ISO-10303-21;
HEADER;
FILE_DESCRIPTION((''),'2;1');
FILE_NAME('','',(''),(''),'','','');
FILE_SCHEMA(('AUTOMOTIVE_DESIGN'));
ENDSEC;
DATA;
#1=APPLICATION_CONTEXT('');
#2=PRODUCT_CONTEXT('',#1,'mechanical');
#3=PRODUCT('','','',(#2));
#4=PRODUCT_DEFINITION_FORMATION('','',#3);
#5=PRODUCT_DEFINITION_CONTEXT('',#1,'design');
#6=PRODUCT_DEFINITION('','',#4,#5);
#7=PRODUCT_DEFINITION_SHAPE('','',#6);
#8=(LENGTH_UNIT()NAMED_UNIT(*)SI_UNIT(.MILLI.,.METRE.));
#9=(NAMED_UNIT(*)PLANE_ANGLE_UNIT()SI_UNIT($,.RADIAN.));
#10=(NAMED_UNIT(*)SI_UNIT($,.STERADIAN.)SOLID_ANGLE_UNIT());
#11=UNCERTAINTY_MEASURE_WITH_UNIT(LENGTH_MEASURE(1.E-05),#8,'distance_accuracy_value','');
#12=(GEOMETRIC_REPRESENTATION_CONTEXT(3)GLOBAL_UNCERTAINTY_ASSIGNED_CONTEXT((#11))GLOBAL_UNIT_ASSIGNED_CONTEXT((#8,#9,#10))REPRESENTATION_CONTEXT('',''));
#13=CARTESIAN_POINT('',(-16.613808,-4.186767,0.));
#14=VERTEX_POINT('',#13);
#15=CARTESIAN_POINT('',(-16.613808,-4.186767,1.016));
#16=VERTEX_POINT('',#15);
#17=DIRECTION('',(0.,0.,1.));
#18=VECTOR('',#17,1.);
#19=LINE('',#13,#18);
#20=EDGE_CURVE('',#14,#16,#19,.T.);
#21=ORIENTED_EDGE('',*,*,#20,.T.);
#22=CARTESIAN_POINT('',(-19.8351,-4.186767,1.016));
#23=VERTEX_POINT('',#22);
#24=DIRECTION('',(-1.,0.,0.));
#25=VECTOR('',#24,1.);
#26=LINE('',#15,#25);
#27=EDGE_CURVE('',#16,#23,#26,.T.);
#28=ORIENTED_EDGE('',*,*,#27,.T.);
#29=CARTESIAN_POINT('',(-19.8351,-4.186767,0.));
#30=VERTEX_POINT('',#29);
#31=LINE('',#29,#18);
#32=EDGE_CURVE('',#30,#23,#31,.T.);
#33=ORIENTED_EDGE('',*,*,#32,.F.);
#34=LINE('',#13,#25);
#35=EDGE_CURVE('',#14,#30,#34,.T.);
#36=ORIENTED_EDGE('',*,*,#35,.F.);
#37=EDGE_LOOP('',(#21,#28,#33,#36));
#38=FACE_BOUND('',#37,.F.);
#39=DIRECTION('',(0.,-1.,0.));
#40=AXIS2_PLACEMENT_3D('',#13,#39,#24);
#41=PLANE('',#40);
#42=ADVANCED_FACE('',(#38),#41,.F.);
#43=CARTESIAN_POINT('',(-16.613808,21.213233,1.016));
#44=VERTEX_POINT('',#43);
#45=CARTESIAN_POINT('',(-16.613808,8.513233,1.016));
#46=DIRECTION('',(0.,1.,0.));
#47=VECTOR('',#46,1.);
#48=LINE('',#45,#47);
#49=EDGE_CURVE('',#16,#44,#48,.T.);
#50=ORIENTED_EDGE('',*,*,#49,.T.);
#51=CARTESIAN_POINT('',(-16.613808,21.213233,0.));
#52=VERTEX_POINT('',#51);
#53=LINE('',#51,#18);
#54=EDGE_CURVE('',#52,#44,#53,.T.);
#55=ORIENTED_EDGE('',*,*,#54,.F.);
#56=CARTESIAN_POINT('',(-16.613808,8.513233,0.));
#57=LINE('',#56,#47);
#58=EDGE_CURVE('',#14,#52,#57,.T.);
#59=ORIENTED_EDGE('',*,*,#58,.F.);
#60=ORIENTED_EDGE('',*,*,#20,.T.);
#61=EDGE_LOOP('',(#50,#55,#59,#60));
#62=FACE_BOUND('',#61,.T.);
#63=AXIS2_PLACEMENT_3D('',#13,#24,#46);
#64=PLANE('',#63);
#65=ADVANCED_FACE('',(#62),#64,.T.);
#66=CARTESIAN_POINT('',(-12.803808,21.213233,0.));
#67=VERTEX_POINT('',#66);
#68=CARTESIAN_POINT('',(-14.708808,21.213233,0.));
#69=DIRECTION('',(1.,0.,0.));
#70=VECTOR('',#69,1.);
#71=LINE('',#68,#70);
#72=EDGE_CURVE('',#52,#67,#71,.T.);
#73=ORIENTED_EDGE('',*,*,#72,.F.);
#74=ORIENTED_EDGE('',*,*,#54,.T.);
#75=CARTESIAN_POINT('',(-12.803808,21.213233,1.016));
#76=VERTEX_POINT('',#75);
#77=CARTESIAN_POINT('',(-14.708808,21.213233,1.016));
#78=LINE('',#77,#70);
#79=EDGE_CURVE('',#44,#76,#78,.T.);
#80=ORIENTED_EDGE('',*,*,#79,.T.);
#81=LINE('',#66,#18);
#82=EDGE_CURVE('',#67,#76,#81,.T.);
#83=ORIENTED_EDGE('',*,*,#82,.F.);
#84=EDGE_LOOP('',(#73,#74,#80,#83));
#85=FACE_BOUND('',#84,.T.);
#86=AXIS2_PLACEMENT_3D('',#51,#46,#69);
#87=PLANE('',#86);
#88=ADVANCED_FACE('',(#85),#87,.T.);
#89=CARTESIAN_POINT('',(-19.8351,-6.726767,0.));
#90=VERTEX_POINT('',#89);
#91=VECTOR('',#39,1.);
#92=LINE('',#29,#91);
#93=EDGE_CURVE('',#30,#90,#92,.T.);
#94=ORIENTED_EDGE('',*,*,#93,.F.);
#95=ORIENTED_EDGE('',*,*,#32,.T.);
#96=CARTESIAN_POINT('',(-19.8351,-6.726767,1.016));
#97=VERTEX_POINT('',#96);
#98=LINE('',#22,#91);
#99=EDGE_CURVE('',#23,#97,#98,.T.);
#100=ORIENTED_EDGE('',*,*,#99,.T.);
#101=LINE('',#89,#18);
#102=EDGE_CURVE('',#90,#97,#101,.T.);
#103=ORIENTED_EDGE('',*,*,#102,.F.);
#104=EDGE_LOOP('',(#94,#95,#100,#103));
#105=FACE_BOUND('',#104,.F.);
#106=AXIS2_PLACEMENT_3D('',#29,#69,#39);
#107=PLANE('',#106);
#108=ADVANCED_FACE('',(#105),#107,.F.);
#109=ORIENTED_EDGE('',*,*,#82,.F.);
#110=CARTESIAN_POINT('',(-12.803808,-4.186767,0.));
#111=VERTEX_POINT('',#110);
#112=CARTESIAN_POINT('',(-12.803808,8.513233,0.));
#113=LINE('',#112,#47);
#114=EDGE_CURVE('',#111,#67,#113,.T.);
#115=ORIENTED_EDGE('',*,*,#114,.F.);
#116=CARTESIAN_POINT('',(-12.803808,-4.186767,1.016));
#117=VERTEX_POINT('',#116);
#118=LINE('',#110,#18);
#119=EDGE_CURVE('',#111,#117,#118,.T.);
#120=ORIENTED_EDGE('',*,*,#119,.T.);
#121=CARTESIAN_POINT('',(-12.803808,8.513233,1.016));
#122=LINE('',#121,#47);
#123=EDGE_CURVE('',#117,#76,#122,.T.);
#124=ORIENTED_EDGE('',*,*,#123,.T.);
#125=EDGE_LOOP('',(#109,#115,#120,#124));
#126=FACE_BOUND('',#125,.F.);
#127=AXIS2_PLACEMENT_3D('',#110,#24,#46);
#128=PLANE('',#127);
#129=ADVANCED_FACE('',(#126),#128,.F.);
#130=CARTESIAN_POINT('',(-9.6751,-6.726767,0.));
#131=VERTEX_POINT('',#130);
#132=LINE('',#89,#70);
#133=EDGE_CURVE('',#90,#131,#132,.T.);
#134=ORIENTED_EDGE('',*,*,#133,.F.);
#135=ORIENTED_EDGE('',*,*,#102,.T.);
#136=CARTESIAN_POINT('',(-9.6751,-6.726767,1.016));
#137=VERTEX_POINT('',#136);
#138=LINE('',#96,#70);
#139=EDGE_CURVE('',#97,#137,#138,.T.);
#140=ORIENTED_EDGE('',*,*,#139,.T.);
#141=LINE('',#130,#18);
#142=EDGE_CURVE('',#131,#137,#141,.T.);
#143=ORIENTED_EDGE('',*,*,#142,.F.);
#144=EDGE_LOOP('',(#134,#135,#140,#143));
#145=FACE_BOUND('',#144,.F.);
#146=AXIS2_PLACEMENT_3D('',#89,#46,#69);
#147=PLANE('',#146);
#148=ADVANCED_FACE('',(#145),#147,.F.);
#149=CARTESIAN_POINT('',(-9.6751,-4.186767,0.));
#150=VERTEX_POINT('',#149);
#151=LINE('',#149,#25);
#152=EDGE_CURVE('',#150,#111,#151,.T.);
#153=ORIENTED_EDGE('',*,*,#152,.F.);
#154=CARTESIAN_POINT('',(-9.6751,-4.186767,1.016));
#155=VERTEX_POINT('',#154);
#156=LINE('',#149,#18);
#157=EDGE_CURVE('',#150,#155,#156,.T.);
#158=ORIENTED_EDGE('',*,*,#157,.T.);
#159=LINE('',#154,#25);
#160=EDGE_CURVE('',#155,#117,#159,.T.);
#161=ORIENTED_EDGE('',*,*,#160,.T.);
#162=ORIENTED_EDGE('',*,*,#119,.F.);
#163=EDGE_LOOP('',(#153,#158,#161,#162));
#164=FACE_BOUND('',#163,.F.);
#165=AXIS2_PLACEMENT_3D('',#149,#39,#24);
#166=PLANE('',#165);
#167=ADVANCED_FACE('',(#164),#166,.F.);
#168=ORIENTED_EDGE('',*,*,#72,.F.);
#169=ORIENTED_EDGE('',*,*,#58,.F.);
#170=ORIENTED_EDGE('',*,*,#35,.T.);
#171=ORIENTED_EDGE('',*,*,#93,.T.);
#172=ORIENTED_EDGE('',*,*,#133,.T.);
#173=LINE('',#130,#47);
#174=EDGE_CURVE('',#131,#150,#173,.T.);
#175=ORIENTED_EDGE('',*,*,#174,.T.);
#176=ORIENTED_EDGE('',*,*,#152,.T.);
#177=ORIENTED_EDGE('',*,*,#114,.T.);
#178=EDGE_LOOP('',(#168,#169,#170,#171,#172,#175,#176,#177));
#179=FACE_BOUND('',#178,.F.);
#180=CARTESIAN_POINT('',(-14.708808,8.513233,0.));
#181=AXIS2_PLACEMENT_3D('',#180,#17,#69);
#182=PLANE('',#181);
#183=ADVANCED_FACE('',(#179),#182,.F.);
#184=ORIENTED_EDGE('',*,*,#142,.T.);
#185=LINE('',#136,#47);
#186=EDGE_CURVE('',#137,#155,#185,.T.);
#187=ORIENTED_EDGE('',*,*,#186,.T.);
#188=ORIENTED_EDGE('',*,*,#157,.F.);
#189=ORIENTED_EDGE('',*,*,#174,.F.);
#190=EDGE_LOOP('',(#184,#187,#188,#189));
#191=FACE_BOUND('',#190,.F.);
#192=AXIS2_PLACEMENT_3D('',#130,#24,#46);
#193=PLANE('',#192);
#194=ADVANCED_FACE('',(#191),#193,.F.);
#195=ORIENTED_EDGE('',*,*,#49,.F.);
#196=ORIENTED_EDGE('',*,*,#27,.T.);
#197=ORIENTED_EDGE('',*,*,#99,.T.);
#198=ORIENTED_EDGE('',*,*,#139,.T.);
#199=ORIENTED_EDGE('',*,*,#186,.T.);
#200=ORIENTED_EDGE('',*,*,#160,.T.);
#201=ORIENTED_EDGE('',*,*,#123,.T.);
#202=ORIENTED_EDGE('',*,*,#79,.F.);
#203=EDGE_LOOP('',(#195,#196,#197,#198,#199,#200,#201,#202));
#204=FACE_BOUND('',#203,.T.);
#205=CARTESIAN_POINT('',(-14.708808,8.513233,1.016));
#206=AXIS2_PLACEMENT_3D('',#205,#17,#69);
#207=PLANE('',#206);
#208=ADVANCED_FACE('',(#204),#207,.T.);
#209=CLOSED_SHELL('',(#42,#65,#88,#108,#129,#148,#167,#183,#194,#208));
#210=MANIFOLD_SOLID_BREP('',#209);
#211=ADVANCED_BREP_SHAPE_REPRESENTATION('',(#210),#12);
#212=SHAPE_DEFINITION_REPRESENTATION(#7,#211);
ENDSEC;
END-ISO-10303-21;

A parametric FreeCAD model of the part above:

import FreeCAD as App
import Part
import Sketcher
Q = App.Units.Quantity


def add_polygon(sketch, points):
    """Adds a closed chain of lines whose ends are joined by coincident constraints."""
    first, n = sketch.GeometryCount, len(points)
    for a, b in zip(points, points[1:] + points[:1]):
        sketch.addGeometry(Part.LineSegment(App.Vector(*a, 0), App.Vector(*b, 0)), False)
    for i in range(n):
        sketch.addConstraint(Sketcher.Constraint("Coincident", first + i, 2, first + (i + 1) % n, 1))

doc = App.newDocument("Part")
body = doc.addObject("PartDesign::Body", "Body")

# Sketch on XY plane
sketch1 = doc.addObject("Sketcher::SketchObject", "Sketch")
body.addObject(sketch1)
sketch1.AttachmentSupport = (doc.XY_Plane, [""])
sketch1.MapMode = "FlatFace"
add_polygon(sketch1, [(-16.613808, 21.213233), (-16.613808, -4.186767), (-19.8351, -4.186767), (-19.8351, -6.726767), (-9.6751, -6.726767), (-9.6751, -4.186767), (-12.803808, -4.186767), (-12.803808, 21.213233)])  # lines 0-7
sketch1.addConstraint(Sketcher.Constraint("Vertical", 0))
sketch1.addConstraint(Sketcher.Constraint("Horizontal", 1))
sketch1.addConstraint(Sketcher.Constraint("Vertical", 2))
sketch1.addConstraint(Sketcher.Constraint("Horizontal", 3))
sketch1.addConstraint(Sketcher.Constraint("Vertical", 4))
sketch1.addConstraint(Sketcher.Constraint("Horizontal", 5))
sketch1.addConstraint(Sketcher.Constraint("Vertical", 6))
sketch1.addConstraint(Sketcher.Constraint("Horizontal", 7))
sketch1.addConstraint(Sketcher.Constraint("Horizontal", 1, 2, 4, 2))
sketch1.addConstraint(Sketcher.Constraint("DistanceY", 0, 2, 0, 1, Q("1 in")))
sketch1.addConstraint(Sketcher.Constraint("DistanceX", 3, 1, 3, 2, Q("0.4 in")))
sketch1.addConstraint(Sketcher.Constraint("DistanceY", 2, 2, 2, 1, Q("0.1 in")))
sketch1.addConstraint(Sketcher.Constraint("DistanceX", 7, 2, 7, 1, Q("0.15 in")))
sketch1.addConstraint(Sketcher.Constraint("DistanceX", 1, 2, -1, 1, 19.8351))
sketch1.addConstraint(Sketcher.Constraint("DistanceX", 1, 2, 1, 1, 3.221292))
sketch1.addConstraint(Sketcher.Constraint("DistanceY", 0, 2, -1, 1, 4.186767))
pad1 = doc.addObject("PartDesign::Pad", "Pad")
body.addObject(pad1)
pad1.Profile = sketch1
pad1.Length = Q("0.04 in")

doc.recompute()
